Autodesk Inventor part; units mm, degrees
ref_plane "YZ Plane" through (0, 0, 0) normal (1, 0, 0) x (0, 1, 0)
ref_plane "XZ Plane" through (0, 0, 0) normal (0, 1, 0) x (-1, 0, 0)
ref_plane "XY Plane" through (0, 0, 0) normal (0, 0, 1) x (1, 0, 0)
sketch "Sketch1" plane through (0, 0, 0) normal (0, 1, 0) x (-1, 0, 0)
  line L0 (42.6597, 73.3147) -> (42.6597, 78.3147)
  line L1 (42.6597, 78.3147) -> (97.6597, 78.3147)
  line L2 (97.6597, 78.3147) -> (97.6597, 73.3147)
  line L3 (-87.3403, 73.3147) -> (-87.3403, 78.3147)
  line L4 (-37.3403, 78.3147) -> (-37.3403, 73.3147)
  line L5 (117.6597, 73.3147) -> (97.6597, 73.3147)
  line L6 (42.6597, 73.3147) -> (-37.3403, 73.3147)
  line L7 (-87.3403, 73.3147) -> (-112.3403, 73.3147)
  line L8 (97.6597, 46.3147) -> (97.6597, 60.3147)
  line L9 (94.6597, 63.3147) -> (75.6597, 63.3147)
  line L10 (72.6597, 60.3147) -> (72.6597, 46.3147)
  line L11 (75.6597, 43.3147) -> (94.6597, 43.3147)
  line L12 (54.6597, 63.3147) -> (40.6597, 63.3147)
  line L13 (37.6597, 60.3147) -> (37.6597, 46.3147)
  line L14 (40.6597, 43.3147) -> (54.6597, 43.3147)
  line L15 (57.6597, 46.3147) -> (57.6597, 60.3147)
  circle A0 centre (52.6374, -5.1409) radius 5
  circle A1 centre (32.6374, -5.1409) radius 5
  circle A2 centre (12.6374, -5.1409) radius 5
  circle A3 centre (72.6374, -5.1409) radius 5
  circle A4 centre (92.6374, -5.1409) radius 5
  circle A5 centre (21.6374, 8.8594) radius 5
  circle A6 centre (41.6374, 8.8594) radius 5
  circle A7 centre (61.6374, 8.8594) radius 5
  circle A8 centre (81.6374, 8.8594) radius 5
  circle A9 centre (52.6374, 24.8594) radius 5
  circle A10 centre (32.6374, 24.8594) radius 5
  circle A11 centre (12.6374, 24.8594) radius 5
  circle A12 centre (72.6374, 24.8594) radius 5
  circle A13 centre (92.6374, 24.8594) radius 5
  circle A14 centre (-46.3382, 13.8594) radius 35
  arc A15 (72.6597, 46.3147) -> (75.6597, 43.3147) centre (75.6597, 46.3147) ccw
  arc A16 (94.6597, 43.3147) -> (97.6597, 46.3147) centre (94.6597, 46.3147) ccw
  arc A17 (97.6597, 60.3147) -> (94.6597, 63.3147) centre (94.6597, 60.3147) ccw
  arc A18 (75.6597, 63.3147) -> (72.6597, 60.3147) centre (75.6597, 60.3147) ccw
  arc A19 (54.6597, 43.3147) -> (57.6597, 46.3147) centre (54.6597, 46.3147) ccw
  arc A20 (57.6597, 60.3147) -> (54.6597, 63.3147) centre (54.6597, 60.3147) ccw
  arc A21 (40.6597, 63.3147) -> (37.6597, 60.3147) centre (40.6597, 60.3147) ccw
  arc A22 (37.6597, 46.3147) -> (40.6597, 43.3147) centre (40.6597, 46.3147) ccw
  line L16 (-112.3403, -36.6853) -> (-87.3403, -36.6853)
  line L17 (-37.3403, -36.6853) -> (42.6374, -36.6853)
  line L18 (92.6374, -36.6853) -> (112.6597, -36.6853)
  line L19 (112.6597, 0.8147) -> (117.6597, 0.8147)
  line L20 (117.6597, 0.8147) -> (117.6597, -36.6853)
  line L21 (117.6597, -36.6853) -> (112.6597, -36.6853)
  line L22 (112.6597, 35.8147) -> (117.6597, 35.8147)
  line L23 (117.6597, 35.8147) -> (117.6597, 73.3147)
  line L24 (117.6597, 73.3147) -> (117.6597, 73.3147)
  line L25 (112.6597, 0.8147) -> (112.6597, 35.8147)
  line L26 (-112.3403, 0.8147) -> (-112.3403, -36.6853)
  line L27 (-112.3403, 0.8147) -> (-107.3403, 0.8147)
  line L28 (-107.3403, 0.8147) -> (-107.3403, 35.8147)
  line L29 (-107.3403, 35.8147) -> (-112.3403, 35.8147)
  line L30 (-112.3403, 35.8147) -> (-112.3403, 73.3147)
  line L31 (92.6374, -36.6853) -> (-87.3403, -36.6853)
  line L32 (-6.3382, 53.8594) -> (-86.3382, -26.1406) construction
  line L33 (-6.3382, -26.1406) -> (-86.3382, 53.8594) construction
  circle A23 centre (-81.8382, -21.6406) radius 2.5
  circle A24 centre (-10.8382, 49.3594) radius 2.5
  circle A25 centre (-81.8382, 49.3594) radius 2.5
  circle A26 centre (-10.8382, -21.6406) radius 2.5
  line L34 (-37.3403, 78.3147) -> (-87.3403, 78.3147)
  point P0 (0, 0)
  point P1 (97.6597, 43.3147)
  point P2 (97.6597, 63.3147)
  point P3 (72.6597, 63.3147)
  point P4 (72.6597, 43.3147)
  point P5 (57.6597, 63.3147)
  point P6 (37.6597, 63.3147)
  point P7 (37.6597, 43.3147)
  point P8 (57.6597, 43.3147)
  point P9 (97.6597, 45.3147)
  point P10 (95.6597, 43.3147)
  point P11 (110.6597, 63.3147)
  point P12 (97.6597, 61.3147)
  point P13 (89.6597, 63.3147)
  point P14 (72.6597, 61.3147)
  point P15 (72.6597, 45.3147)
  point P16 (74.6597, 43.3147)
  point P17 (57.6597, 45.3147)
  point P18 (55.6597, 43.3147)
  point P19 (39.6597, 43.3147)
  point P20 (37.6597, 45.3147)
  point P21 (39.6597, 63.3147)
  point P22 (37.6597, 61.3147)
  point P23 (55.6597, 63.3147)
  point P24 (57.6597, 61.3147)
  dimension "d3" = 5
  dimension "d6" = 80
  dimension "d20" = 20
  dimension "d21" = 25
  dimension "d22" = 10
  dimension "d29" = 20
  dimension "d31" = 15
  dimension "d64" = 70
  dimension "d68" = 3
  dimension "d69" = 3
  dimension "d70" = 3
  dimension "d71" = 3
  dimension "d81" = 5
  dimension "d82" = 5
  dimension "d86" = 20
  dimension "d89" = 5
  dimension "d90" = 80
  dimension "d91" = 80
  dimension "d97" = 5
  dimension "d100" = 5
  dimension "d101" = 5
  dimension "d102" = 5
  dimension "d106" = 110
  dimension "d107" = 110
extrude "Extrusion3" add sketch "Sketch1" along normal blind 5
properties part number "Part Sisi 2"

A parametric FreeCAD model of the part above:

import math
import FreeCAD as App
import Part
import Sketcher
Q = App.Units.Quantity

doc = App.newDocument("Part")
body = doc.addObject("PartDesign::Body", "Body")

# Sketch on XZ plane
sketch1 = body.newObject("Sketcher::SketchObject", "Sketch")
sketch1.AttachmentSupport = (doc.getObject("XZ_Plane"), [""])
sketch1.MapMode = "FlatFace"
sketch1.addGeometry([
    Part.LineSegment(App.Vector(-42.7, 78.3, 0), App.Vector(-42.7, 73.3, 0)),  # 0
    Part.LineSegment(App.Vector(-42.7, 73.3, 0), App.Vector(37.3, 73.3, 0)),  # 1
    Part.LineSegment(App.Vector(37.3, 73.3, 0), App.Vector(37.3, 78.3, 0)),  # 2
    Part.LineSegment(App.Vector(37.3, 78.3, 0), App.Vector(87.3, 78.3, 0)),  # 3
    Part.LineSegment(App.Vector(87.3, 78.3, 0), App.Vector(87.3, 73.3, 0)),  # 4
    Part.LineSegment(App.Vector(87.3, 73.3, 0), App.Vector(112.3, 73.3, 0)),  # 5
    Part.LineSegment(App.Vector(112.3, 73.3, 0), App.Vector(112.3, 35.8, 0)),  # 6
    Part.LineSegment(App.Vector(112.3, 35.8, 0), App.Vector(107.3, 35.8, 0)),  # 7
    Part.LineSegment(App.Vector(107.3, 35.8, 0), App.Vector(107.3, 0.8, 0)),  # 8
    Part.LineSegment(App.Vector(107.3, 0.8, 0), App.Vector(112.3, 0.8, 0)),  # 9
    Part.LineSegment(App.Vector(112.3, 0.8, 0), App.Vector(112.3, -36.7, 0)),  # 10
    Part.LineSegment(App.Vector(112.3, -36.7, 0), App.Vector(-117.7, -36.7, 0)),  # 11
    Part.LineSegment(App.Vector(-117.7, -36.7, 0), App.Vector(-117.7, 0.8, 0)),  # 12
    Part.LineSegment(App.Vector(-117.7, 0.8, 0), App.Vector(-112.7, 0.8, 0)),  # 13
    Part.LineSegment(App.Vector(-112.7, 0.8, 0), App.Vector(-112.7, 35.8, 0)),  # 14
    Part.LineSegment(App.Vector(-112.7, 35.8, 0), App.Vector(-117.7, 35.8, 0)),  # 15
    Part.LineSegment(App.Vector(-117.7, 35.8, 0), App.Vector(-117.7, 73.3, 0)),  # 16
    Part.LineSegment(App.Vector(-117.7, 73.3, 0), App.Vector(-97.7, 73.3, 0)),  # 17
    Part.LineSegment(App.Vector(-97.7, 73.3, 0), App.Vector(-97.7, 78.3, 0)),  # 18
    Part.LineSegment(App.Vector(-97.7, 78.3, 0), App.Vector(-42.7, 78.3, 0)),  # 19
    Part.Circle(App.Vector(81.8, -21.6, 0), App.Vector(0, 0, 1), 2.5),  # 20
    Part.Circle(App.Vector(10.8, -21.6, 0), App.Vector(0, 0, 1), 2.5),  # 21
    Part.Circle(App.Vector(46.3, 13.9, 0), App.Vector(0, 0, 1), 35),  # 22
    Part.Circle(App.Vector(-12.6, -5.1, 0), App.Vector(0, 0, 1), 5),  # 23
    Part.Circle(App.Vector(-32.6, -5.1, 0), App.Vector(0, 0, 1), 5),  # 24
    Part.Circle(App.Vector(-52.6, -5.1, 0), App.Vector(0, 0, 1), 5),  # 25
    Part.Circle(App.Vector(-21.6, 8.9, 0), App.Vector(0, 0, 1), 5),  # 26
    Part.Circle(App.Vector(-41.6, 8.9, 0), App.Vector(0, 0, 1), 5),  # 27
    Part.Circle(App.Vector(-72.6, -5.1, 0), App.Vector(0, 0, 1), 5),  # 28
    Part.Circle(App.Vector(-92.6, -5.1, 0), App.Vector(0, 0, 1), 5),  # 29
    Part.Circle(App.Vector(-61.6, 8.9, 0), App.Vector(0, 0, 1), 5),  # 30
    Part.Circle(App.Vector(-81.6, 8.9, 0), App.Vector(0, 0, 1), 5),  # 31
    Part.Circle(App.Vector(81.8, 49.4, 0), App.Vector(0, 0, 1), 2.5),  # 32
    Part.Circle(App.Vector(10.8, 49.4, 0), App.Vector(0, 0, 1), 2.5),  # 33
    Part.Circle(App.Vector(-12.6, 24.9, 0), App.Vector(0, 0, 1), 5),  # 34
    Part.Circle(App.Vector(-32.6, 24.9, 0), App.Vector(0, 0, 1), 5),  # 35
    Part.Circle(App.Vector(-52.6, 24.9, 0), App.Vector(0, 0, 1), 5),  # 36
    Part.Circle(App.Vector(-72.6, 24.9, 0), App.Vector(0, 0, 1), 5),  # 37
    Part.Circle(App.Vector(-92.6, 24.9, 0), App.Vector(0, 0, 1), 5),  # 38
    Part.LineSegment(App.Vector(-40.7, 63.3, 0), App.Vector(-54.7, 63.3, 0)),  # 39
    Part.ArcOfCircle(Part.Circle(App.Vector(-54.7, 60.3, 0), App.Vector(0, 0, 1), 3), math.radians(90), math.radians(180)),  # 40
    Part.LineSegment(App.Vector(-57.7, 60.3, 0), App.Vector(-57.7, 46.3, 0)),  # 41
    Part.ArcOfCircle(Part.Circle(App.Vector(-54.7, 46.3, 0), App.Vector(0, 0, 1), 3), math.radians(180), math.radians(270)),  # 42
    Part.LineSegment(App.Vector(-54.7, 43.3, 0), App.Vector(-40.7, 43.3, 0)),  # 43
    Part.ArcOfCircle(Part.Circle(App.Vector(-40.7, 46.3, 0), App.Vector(0, 0, 1), 3), math.radians(-90), math.radians(0)),  # 44
    Part.LineSegment(App.Vector(-37.7, 46.3, 0), App.Vector(-37.7, 60.3, 0)),  # 45
    Part.ArcOfCircle(Part.Circle(App.Vector(-40.7, 60.3, 0), App.Vector(0, 0, 1), 3), math.radians(0), math.radians(90)),  # 46
    Part.LineSegment(App.Vector(-97.7, 60.3, 0), App.Vector(-97.7, 46.3, 0)),  # 47
    Part.ArcOfCircle(Part.Circle(App.Vector(-94.7, 46.3, 0), App.Vector(0, 0, 1), 3), math.radians(180), math.radians(270)),  # 48
    Part.LineSegment(App.Vector(-94.7, 43.3, 0), App.Vector(-75.7, 43.3, 0)),  # 49
    Part.ArcOfCircle(Part.Circle(App.Vector(-75.7, 46.3, 0), App.Vector(0, 0, 1), 3), math.radians(-90), math.radians(0)),  # 50
    Part.LineSegment(App.Vector(-72.7, 46.3, 0), App.Vector(-72.7, 60.3, 0)),  # 51
    Part.ArcOfCircle(Part.Circle(App.Vector(-75.7, 60.3, 0), App.Vector(0, 0, 1), 3), math.radians(0), math.radians(90)),  # 52
    Part.LineSegment(App.Vector(-75.7, 63.3, 0), App.Vector(-94.7, 63.3, 0)),  # 53
    Part.ArcOfCircle(Part.Circle(App.Vector(-94.7, 60.3, 0), App.Vector(0, 0, 1), 3), math.radians(90), math.radians(180)),  # 54
], False)
sketch1.addConstraint([
    Sketcher.Constraint("Coincident", 0, 2, 1, 1),
    Sketcher.Constraint("Coincident", 1, 2, 2, 1),
    Sketcher.Constraint("Coincident", 2, 2, 3, 1),
    Sketcher.Constraint("Coincident", 3, 2, 4, 1),
    Sketcher.Constraint("Coincident", 4, 2, 5, 1),
    Sketcher.Constraint("Coincident", 5, 2, 6, 1),
    Sketcher.Constraint("Coincident", 6, 2, 7, 1),
    Sketcher.Constraint("Coincident", 7, 2, 8, 1),
    Sketcher.Constraint("Coincident", 8, 2, 9, 1),
    Sketcher.Constraint("Coincident", 9, 2, 10, 1),
    Sketcher.Constraint("Coincident", 10, 2, 11, 1),
    Sketcher.Constraint("Coincident", 11, 2, 12, 1),
    Sketcher.Constraint("Coincident", 12, 2, 13, 1),
    Sketcher.Constraint("Coincident", 13, 2, 14, 1),
    Sketcher.Constraint("Coincident", 14, 2, 15, 1),
    Sketcher.Constraint("Coincident", 15, 2, 16, 1),
    Sketcher.Constraint("Coincident", 16, 2, 17, 1),
    Sketcher.Constraint("Coincident", 17, 2, 18, 1),
    Sketcher.Constraint("Coincident", 18, 2, 19, 1),
    Sketcher.Constraint("Coincident", 19, 2, 0, 1),
    Sketcher.Constraint("Tangent", 39, 2, 40, 1),
    Sketcher.Constraint("Tangent", 40, 2, 41, 1),
    Sketcher.Constraint("Tangent", 41, 2, 42, 1),
    Sketcher.Constraint("Tangent", 42, 2, 43, 1),
    Sketcher.Constraint("Tangent", 43, 2, 44, 1),
    Sketcher.Constraint("Tangent", 44, 2, 45, 1),
    Sketcher.Constraint("Tangent", 45, 2, 46, 1),
    Sketcher.Constraint("Tangent", 46, 2, 39, 1),
    Sketcher.Constraint("Tangent", 47, 2, 48, 1),
    Sketcher.Constraint("Tangent", 48, 2, 49, 1),
    Sketcher.Constraint("Tangent", 49, 2, 50, 1),
    Sketcher.Constraint("Tangent", 50, 2, 51, 1),
    Sketcher.Constraint("Tangent", 51, 2, 52, 1),
    Sketcher.Constraint("Tangent", 52, 2, 53, 1),
    Sketcher.Constraint("Tangent", 53, 2, 54, 1),
    Sketcher.Constraint("Tangent", 54, 2, 47, 1),
    Sketcher.Constraint("Vertical", 0),
    Sketcher.Constraint("Horizontal", 1),
    Sketcher.Constraint("Vertical", 2),
    Sketcher.Constraint("Horizontal", 3),
    Sketcher.Constraint("Vertical", 4),
    Sketcher.Constraint("Horizontal", 5),
    Sketcher.Constraint("Vertical", 6),
    Sketcher.Constraint("Horizontal", 7),
    Sketcher.Constraint("Vertical", 8),
    Sketcher.Constraint("Horizontal", 9),
    Sketcher.Constraint("Vertical", 10),
    Sketcher.Constraint("Horizontal", 11),
    Sketcher.Constraint("Vertical", 12),
    Sketcher.Constraint("Horizontal", 13),
    Sketcher.Constraint("Vertical", 14),
    Sketcher.Constraint("Horizontal", 15),
    Sketcher.Constraint("Vertical", 16),
    Sketcher.Constraint("Horizontal", 17),
    Sketcher.Constraint("Vertical", 18),
    Sketcher.Constraint("Horizontal", 19),
    Sketcher.Constraint("Horizontal", 39),
    Sketcher.Constraint("Vertical", 41),
    Sketcher.Constraint("Horizontal", 43),
    Sketcher.Constraint("Vertical", 45),
    Sketcher.Constraint("Vertical", 47),
    Sketcher.Constraint("Horizontal", 49),
    Sketcher.Constraint("Vertical", 51),
    Sketcher.Constraint("Horizontal", 53),
    Sketcher.Constraint("Equal", 20, 21),
    Sketcher.Constraint("Equal", 23, 24),
    Sketcher.Constraint("Equal", 24, 25),
    Sketcher.Constraint("Equal", 25, 26),
    Sketcher.Constraint("Equal", 26, 27),
    Sketcher.Constraint("Equal", 27, 28),
    Sketcher.Constraint("Equal", 28, 29),
    Sketcher.Constraint("Equal", 29, 30),
    Sketcher.Constraint("Equal", 30, 31),
    Sketcher.Constraint("Equal", 21, 32),
    Sketcher.Constraint("Equal", 32, 33),
    Sketcher.Constraint("Equal", 31, 34),
    Sketcher.Constraint("Equal", 34, 35),
    Sketcher.Constraint("Equal", 35, 36),
    Sketcher.Constraint("Equal", 36, 37),
    Sketcher.Constraint("Equal", 37, 38),
    Sketcher.Constraint("Equal", 40, 42),
    Sketcher.Constraint("Equal", 42, 44),
    Sketcher.Constraint("Equal", 44, 46),
    Sketcher.Constraint("Equal", 46, 48),
    Sketcher.Constraint("Equal", 48, 50),
    Sketcher.Constraint("Equal", 50, 52),
    Sketcher.Constraint("Equal", 52, 54),
    Sketcher.Constraint("Horizontal", 20, 3, 21, 3),
    Sketcher.Constraint("Horizontal", 23, 3, 24, 3),
    Sketcher.Constraint("Horizontal", 24, 3, 25, 3),
    Sketcher.Constraint("Horizontal", 26, 3, 27, 3),
    Sketcher.Constraint("Horizontal", 25, 3, 28, 3),
    Sketcher.Constraint("Horizontal", 28, 3, 29, 3),
    Sketcher.Constraint("Horizontal", 27, 3, 30, 3),
    Sketcher.Constraint("Horizontal", 30, 3, 31, 3),
    Sketcher.Constraint("Horizontal", 32, 3, 33, 3),
    Sketcher.Constraint("Horizontal", 34, 3, 35, 3),
    Sketcher.Constraint("Horizontal", 35, 3, 36, 3),
    Sketcher.Constraint("Horizontal", 36, 3, 37, 3),
    Sketcher.Constraint("Horizontal", 37, 3, 38, 3),
    Sketcher.Constraint("Horizontal", 44, 3, 48, 3),
    Sketcher.Constraint("Horizontal", 46, 3, 52, 3),
    Sketcher.Constraint("Horizontal", 1, 2, 4, 2),
    Sketcher.Constraint("Horizontal", 9, 2, 12, 2),
    Sketcher.Constraint("Horizontal", 7, 2, 14, 2),
    Sketcher.Constraint("Horizontal", 5, 2, 16, 2),
    Sketcher.Constraint("Horizontal", 3, 2, 18, 2),
    Sketcher.Constraint("Vertical", 20, 3, 32, 3),
    Sketcher.Constraint("Vertical", 21, 3, 33, 3),
    Sketcher.Constraint("Vertical", 23, 3, 34, 3),
    Sketcher.Constraint("Vertical", 24, 3, 35, 3),
    Sketcher.Constraint("Vertical", 25, 3, 36, 3),
    Sketcher.Constraint("Vertical", 28, 3, 37, 3),
    Sketcher.Constraint("Vertical", 29, 3, 38, 3),
    Sketcher.Constraint("Vertical", 6, 2, 9, 2),
    Sketcher.Constraint("Vertical", 12, 2, 15, 2),
    Sketcher.Constraint("Vertical", 18, 2, 47, 2),
    Sketcher.Constraint("Equal", 9, 13),
    Sketcher.Constraint("Equal", 15, 0),
    Sketcher.Constraint("Equal", 6, 10),
    Sketcher.Constraint("Equal", 43, 41),
    Sketcher.Constraint("Diameter", 20, Q("5 mm")),
    Sketcher.Constraint("Diameter", 22, Q("70 mm")),
    Sketcher.Constraint("Diameter", 23, Q("10 mm")),
    Sketcher.Constraint("Radius", 40, Q("3 mm")),
    Sketcher.Constraint("DistanceX", 1, 1, 1, 2, Q("80 mm")),
    Sketcher.Constraint("DistanceX", 5, 1, 5, 2, Q("25 mm")),
    Sketcher.Constraint("DistanceX", 7, 2, 7, 1, Q("5 mm")),
    Sketcher.Constraint("DistanceX", 17, 1, 17, 2, Q("20 mm")),
    Sketcher.Constraint("DistanceX", 3, 1, 3, 2, Q("50 mm")),
    Sketcher.Constraint("DistanceX", 11, 2, 11, 1, Q("230 mm")),
    Sketcher.Constraint("DistanceX", 39, 2, 39, 1, Q("14 mm")),
    Sketcher.Constraint("DistanceX", 49, 1, 49, 2, Q("19 mm")),
    Sketcher.Constraint("DistanceY", 8, 2, 8, 1, Q("35 mm")),
    Sketcher.Constraint("DistanceY", 6, 2, 6, 1, Q("37.5 mm")),
    Sketcher.Constraint("DistanceY", 23, 3, -1, 1, Q("5.141 mm")),
    Sketcher.Constraint("DistanceX", -1, 1, 20, 3, Q("81.8382 mm")),
    Sketcher.Constraint("DistanceY", 20, 3, -1, 1, Q("21.6406 mm")),
    Sketcher.Constraint("DistanceX", -1, 1, 21, 3, Q("10.8382 mm")),
    Sketcher.Constraint("DistanceX", -1, 1, 22, 3, Q("46.3382 mm")),
    Sketcher.Constraint("DistanceY", -1, 1, 22, 3, Q("13.8594 mm")),
    Sketcher.Constraint("DistanceX", 23, 3, -1, 1, Q("12.6374 mm")),
    Sketcher.Constraint("DistanceX", 24, 3, -1, 1, Q("32.6374 mm")),
    Sketcher.Constraint("DistanceX", 25, 3, -1, 1, Q("52.6374 mm")),
    Sketcher.Constraint("DistanceX", 26, 3, -1, 1, Q("21.6374 mm")),
    Sketcher.Constraint("DistanceY", -1, 1, 26, 3, Q("8.8594 mm")),
    Sketcher.Constraint("DistanceX", 27, 3, -1, 1, Q("41.6374 mm")),
    Sketcher.Constraint("DistanceX", 28, 3, -1, 1, Q("72.6374 mm")),
    Sketcher.Constraint("DistanceX", 29, 3, -1, 1, Q("92.6374 mm")),
    Sketcher.Constraint("DistanceX", 30, 3, -1, 1, Q("61.6374 mm")),
    Sketcher.Constraint("DistanceX", 31, 3, -1, 1, Q("81.6374 mm")),
    Sketcher.Constraint("DistanceY", -1, 1, 32, 3, Q("49.3594 mm")),
    Sketcher.Constraint("DistanceY", -1, 1, 34, 3, Q("24.8594 mm")),
    Sketcher.Constraint("DistanceX", 40, 3, -1, 1, Q("54.6597 mm")),
    Sketcher.Constraint("DistanceY", -1, 1, 40, 3, Q("60.3147 mm")),
    Sketcher.Constraint("DistanceX", 48, 3, -1, 1, Q("94.6597 mm")),
    Sketcher.Constraint("DistanceY", -1, 1, 0, 2, Q("73.3147 mm")),
])
pad1 = body.newObject("PartDesign::Pad", "Pad")
pad1.Profile = sketch1
pad1.Length = 5
pad1.Reversed = True

doc.recompute()
